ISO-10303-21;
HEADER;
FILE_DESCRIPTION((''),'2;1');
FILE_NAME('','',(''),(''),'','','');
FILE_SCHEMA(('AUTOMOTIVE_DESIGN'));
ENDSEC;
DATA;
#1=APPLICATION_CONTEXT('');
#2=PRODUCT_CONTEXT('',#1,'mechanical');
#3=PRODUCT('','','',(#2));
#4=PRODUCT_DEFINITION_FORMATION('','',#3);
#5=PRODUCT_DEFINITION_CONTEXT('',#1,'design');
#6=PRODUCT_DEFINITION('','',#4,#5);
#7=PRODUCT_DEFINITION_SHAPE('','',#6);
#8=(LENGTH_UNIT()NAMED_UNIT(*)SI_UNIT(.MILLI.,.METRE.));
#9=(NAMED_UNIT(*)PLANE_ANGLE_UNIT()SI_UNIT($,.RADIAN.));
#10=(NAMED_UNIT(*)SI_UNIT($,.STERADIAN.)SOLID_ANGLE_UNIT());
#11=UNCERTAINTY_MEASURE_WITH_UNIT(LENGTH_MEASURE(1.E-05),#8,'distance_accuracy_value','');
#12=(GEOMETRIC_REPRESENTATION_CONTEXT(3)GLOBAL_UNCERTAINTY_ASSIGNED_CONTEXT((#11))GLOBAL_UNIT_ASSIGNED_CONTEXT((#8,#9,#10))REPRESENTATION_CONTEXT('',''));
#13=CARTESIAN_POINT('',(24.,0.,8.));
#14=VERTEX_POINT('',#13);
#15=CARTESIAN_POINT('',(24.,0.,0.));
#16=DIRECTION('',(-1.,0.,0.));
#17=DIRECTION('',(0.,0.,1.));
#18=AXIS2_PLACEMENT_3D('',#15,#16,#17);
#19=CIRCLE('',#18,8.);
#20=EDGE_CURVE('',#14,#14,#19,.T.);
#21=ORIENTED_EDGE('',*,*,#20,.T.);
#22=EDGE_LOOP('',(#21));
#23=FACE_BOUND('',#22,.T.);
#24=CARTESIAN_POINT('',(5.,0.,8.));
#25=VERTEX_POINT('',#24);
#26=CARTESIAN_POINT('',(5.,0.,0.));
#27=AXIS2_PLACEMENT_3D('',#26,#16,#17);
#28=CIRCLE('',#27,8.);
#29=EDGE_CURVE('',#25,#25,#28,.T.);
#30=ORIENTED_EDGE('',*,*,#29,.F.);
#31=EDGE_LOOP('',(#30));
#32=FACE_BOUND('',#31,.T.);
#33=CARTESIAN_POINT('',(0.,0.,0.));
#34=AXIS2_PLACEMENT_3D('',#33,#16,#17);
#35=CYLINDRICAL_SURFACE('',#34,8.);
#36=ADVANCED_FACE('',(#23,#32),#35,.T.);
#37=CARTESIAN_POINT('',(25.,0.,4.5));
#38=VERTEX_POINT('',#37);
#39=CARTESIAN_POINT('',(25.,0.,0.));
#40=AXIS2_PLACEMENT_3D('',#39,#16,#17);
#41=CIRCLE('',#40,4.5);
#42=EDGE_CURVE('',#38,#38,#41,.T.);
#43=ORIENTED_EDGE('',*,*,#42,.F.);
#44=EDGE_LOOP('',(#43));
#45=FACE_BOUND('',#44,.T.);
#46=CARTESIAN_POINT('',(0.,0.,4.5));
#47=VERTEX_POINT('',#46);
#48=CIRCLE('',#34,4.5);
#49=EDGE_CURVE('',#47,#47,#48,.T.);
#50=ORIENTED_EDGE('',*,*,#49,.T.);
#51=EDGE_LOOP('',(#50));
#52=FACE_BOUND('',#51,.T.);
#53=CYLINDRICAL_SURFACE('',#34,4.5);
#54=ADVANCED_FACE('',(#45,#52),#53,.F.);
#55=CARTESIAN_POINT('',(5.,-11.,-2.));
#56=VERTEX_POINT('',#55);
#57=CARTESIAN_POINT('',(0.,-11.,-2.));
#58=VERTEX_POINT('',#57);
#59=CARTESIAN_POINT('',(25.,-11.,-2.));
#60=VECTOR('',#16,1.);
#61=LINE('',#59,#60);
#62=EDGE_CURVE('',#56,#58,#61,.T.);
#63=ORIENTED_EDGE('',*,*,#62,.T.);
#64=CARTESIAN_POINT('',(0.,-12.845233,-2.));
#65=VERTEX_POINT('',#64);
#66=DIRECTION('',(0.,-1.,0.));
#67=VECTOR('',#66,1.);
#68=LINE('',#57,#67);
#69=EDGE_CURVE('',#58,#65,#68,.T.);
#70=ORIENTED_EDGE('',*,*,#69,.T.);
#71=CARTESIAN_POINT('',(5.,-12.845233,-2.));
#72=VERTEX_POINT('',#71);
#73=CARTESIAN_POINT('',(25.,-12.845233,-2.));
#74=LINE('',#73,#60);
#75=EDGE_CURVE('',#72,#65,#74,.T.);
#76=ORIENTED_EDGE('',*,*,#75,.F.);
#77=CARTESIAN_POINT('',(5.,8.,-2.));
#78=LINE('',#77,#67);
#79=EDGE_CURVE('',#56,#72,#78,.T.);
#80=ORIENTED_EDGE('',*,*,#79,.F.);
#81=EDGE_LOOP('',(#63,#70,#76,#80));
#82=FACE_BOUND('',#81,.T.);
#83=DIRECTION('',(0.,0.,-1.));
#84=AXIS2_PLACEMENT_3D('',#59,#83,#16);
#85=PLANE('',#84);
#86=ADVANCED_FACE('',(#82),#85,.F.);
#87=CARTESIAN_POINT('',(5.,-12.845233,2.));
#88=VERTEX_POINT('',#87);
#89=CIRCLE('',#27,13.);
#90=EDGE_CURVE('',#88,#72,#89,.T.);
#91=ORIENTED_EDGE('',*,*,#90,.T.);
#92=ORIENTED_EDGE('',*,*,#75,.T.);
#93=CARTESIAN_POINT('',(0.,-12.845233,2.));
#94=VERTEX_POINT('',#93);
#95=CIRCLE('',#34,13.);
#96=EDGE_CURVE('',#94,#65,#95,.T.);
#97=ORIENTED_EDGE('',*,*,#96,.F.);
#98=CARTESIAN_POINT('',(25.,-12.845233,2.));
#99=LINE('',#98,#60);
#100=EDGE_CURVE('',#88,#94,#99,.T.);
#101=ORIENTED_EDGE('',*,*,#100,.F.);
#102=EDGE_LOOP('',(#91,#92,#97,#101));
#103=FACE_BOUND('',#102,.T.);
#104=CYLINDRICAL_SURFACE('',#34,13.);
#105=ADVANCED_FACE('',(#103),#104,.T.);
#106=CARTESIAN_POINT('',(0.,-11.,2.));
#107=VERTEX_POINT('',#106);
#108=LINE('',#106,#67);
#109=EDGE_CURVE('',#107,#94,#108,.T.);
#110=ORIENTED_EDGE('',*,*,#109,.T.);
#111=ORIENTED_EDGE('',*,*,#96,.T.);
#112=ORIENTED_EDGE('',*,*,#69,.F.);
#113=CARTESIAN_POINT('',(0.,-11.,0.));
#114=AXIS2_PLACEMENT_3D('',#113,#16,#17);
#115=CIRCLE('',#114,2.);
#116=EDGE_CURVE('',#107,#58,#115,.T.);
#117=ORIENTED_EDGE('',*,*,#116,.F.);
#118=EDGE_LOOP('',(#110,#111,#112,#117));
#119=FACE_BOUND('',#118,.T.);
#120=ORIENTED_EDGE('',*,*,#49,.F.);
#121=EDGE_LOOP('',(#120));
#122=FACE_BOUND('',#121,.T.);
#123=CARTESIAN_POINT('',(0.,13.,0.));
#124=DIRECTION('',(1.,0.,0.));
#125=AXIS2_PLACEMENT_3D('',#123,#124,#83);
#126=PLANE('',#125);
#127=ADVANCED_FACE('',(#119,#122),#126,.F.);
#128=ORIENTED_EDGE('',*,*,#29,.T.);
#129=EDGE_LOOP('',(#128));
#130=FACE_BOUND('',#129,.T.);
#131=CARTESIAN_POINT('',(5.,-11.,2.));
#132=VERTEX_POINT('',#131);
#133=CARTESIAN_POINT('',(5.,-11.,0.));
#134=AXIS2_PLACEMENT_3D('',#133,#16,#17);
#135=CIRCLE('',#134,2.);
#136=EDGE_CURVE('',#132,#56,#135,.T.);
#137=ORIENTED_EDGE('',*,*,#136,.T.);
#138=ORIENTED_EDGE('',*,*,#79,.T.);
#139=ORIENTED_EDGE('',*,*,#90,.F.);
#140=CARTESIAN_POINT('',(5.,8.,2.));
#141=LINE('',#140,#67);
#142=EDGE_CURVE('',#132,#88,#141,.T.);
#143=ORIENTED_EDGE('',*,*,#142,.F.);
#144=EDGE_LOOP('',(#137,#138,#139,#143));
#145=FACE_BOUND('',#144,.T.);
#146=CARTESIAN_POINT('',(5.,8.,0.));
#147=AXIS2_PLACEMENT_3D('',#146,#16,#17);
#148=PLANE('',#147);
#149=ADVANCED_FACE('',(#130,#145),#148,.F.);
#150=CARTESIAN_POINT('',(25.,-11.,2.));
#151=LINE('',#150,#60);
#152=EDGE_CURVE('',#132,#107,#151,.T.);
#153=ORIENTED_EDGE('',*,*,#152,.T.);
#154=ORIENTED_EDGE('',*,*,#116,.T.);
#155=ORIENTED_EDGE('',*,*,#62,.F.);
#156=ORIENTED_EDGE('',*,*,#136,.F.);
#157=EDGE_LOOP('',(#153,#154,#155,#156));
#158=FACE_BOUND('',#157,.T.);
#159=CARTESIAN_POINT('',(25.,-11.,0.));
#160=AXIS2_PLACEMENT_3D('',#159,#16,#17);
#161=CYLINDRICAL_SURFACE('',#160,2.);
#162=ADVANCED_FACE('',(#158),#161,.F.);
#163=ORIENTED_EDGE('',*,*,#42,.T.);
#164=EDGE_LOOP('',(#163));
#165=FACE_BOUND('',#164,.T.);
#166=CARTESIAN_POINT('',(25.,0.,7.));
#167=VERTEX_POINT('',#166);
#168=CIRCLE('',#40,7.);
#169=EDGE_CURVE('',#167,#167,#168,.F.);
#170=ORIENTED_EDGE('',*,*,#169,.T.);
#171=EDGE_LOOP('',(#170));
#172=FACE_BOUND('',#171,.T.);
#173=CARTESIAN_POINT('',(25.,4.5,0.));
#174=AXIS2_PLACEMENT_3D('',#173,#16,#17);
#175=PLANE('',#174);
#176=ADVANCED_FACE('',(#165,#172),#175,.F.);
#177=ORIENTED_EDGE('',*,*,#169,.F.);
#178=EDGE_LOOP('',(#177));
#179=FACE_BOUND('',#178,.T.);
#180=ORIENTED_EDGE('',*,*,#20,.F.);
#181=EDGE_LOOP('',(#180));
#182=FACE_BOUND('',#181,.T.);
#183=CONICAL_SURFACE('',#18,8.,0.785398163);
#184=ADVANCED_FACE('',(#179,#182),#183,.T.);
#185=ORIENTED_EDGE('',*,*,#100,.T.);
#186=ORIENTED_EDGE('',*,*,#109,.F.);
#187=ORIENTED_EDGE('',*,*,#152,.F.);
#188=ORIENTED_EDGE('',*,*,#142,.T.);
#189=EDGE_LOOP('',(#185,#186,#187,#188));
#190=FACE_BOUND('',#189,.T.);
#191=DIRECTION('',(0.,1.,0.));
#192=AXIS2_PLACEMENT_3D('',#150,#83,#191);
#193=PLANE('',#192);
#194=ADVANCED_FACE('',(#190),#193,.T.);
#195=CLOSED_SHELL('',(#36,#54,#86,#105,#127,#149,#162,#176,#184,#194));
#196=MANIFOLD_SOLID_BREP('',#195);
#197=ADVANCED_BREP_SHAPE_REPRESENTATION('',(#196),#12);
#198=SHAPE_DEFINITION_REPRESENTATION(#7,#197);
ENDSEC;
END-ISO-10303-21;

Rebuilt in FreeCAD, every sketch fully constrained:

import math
import FreeCAD as App
import Part
import Sketcher
Q = App.Units.Quantity


def edges_at(feature, points):
    """Names of the edges that pass closest to the given points."""
    edges = feature.Shape.Edges
    near = lambda p: min(range(len(edges)), key=lambda i: edges[i].distToShape(Part.Vertex(*p))[0])
    return sorted({f"Edge{near(p) + 1}" for p in points})


def add_polygon(sketch, points):
    """Adds a closed chain of lines whose ends are joined by coincident constraints."""
    first, n = sketch.GeometryCount, len(points)
    for a, b in zip(points, points[1:] + points[:1]):
        sketch.addGeometry(Part.LineSegment(App.Vector(*a, 0), App.Vector(*b, 0)), False)
    for i in range(n):
        sketch.addConstraint(Sketcher.Constraint("Coincident", first + i, 2, first + (i + 1) % n, 1))

doc = App.newDocument("Part")
body = doc.addObject("PartDesign::Body", "Body")

sketch1 = body.newObject("Sketcher::SketchObject", "Sketch")
sketch1.AttachmentSupport = (doc.getObject("XY_Plane"), [""])
sketch1.MapMode = "FlatFace"
add_polygon(sketch1, [(0, 4.5), (25, 4.5), (25, 8), (5, 8), (5, 13), (0, 13)])
sketch1.addConstraint([
    Sketcher.Constraint("Horizontal", 0),
    Sketcher.Constraint("Vertical", 1),
    Sketcher.Constraint("Horizontal", 2),
    Sketcher.Constraint("Vertical", 3),
    Sketcher.Constraint("Horizontal", 4),
    Sketcher.Constraint("Vertical", 5),
    Sketcher.Constraint("PointOnObject", 4, 2, -2),
    Sketcher.Constraint("Equal", 4, 3),
    Sketcher.Constraint("DistanceX", 0, 1, 0, 2, Q("25 mm")),
    Sketcher.Constraint("DistanceX", 2, 2, 2, 1, Q("20 mm")),
    Sketcher.Constraint("DistanceY", 1, 1, 1, 2, Q("3.5 mm")),
    Sketcher.Constraint("DistanceY", -1, 1, 1, 2, Q("8 mm")),
])
revolution = body.newObject("PartDesign::Revolution", "Revolution")
revolution.Profile = sketch1
revolution.ReferenceAxis = (sketch1, ["H_Axis"])
revolution.Angle = 360
doc.recompute()

chamfer = body.newObject("PartDesign::Chamfer", "Chamfer")
chamfer.Base = (revolution, edges_at(revolution, [(25, 0, -8)]))
chamfer.Size = 1

sketch2 = body.newObject("Sketcher::SketchObject", "Sketch001")
sketch2.AttachmentSupport = (doc.getObject("YZ_Plane"), [""])
sketch2.MapMode = "FlatFace"
sketch2.addGeometry([
    Part.LineSegment(App.Vector(-12.845233, 2, 0), App.Vector(-11, 2, 0)),
    Part.ArcOfCircle(Part.Circle(App.Vector(-11, 0, 0), App.Vector(0, 0, 1), 2), math.radians(-90), math.radians(90)),
    Part.LineSegment(App.Vector(-11, -2, 0), App.Vector(-12.845233, -2, 0)),
    Part.ArcOfCircle(Part.Circle(App.Vector(0, 0, 0), App.Vector(0, 0, 1), 13), math.radians(171.150117), math.radians(188.849883)),
], False)
sketch2.addConstraint([
    Sketcher.Constraint("Tangent", 0, 2, 1, 2),
    Sketcher.Constraint("Tangent", 1, 1, 2, 1),
    Sketcher.Constraint("Coincident", 2, 2, 3, 2),
    Sketcher.Constraint("Coincident", 3, 1, 0, 1),
    Sketcher.Constraint("Horizontal", 0),
    Sketcher.Constraint("Horizontal", 2),
    Sketcher.Constraint("Coincident", 3, 3, -1, 1),
    Sketcher.Constraint("PointOnObject", 1, 3, -1),
    Sketcher.Constraint("Radius", 1, Q("2 mm")),
    Sketcher.Constraint("Radius", 3, Q("13 mm")),
    Sketcher.Constraint("DistanceX", 1, 3, -1, 1, Q("11 mm")),
])
pocket1 = body.newObject("PartDesign::Pocket", "Pocket")
pocket1.Profile = sketch2
pocket1.Type = "ThroughAll"
pocket1.Reversed = True

doc.recompute()
